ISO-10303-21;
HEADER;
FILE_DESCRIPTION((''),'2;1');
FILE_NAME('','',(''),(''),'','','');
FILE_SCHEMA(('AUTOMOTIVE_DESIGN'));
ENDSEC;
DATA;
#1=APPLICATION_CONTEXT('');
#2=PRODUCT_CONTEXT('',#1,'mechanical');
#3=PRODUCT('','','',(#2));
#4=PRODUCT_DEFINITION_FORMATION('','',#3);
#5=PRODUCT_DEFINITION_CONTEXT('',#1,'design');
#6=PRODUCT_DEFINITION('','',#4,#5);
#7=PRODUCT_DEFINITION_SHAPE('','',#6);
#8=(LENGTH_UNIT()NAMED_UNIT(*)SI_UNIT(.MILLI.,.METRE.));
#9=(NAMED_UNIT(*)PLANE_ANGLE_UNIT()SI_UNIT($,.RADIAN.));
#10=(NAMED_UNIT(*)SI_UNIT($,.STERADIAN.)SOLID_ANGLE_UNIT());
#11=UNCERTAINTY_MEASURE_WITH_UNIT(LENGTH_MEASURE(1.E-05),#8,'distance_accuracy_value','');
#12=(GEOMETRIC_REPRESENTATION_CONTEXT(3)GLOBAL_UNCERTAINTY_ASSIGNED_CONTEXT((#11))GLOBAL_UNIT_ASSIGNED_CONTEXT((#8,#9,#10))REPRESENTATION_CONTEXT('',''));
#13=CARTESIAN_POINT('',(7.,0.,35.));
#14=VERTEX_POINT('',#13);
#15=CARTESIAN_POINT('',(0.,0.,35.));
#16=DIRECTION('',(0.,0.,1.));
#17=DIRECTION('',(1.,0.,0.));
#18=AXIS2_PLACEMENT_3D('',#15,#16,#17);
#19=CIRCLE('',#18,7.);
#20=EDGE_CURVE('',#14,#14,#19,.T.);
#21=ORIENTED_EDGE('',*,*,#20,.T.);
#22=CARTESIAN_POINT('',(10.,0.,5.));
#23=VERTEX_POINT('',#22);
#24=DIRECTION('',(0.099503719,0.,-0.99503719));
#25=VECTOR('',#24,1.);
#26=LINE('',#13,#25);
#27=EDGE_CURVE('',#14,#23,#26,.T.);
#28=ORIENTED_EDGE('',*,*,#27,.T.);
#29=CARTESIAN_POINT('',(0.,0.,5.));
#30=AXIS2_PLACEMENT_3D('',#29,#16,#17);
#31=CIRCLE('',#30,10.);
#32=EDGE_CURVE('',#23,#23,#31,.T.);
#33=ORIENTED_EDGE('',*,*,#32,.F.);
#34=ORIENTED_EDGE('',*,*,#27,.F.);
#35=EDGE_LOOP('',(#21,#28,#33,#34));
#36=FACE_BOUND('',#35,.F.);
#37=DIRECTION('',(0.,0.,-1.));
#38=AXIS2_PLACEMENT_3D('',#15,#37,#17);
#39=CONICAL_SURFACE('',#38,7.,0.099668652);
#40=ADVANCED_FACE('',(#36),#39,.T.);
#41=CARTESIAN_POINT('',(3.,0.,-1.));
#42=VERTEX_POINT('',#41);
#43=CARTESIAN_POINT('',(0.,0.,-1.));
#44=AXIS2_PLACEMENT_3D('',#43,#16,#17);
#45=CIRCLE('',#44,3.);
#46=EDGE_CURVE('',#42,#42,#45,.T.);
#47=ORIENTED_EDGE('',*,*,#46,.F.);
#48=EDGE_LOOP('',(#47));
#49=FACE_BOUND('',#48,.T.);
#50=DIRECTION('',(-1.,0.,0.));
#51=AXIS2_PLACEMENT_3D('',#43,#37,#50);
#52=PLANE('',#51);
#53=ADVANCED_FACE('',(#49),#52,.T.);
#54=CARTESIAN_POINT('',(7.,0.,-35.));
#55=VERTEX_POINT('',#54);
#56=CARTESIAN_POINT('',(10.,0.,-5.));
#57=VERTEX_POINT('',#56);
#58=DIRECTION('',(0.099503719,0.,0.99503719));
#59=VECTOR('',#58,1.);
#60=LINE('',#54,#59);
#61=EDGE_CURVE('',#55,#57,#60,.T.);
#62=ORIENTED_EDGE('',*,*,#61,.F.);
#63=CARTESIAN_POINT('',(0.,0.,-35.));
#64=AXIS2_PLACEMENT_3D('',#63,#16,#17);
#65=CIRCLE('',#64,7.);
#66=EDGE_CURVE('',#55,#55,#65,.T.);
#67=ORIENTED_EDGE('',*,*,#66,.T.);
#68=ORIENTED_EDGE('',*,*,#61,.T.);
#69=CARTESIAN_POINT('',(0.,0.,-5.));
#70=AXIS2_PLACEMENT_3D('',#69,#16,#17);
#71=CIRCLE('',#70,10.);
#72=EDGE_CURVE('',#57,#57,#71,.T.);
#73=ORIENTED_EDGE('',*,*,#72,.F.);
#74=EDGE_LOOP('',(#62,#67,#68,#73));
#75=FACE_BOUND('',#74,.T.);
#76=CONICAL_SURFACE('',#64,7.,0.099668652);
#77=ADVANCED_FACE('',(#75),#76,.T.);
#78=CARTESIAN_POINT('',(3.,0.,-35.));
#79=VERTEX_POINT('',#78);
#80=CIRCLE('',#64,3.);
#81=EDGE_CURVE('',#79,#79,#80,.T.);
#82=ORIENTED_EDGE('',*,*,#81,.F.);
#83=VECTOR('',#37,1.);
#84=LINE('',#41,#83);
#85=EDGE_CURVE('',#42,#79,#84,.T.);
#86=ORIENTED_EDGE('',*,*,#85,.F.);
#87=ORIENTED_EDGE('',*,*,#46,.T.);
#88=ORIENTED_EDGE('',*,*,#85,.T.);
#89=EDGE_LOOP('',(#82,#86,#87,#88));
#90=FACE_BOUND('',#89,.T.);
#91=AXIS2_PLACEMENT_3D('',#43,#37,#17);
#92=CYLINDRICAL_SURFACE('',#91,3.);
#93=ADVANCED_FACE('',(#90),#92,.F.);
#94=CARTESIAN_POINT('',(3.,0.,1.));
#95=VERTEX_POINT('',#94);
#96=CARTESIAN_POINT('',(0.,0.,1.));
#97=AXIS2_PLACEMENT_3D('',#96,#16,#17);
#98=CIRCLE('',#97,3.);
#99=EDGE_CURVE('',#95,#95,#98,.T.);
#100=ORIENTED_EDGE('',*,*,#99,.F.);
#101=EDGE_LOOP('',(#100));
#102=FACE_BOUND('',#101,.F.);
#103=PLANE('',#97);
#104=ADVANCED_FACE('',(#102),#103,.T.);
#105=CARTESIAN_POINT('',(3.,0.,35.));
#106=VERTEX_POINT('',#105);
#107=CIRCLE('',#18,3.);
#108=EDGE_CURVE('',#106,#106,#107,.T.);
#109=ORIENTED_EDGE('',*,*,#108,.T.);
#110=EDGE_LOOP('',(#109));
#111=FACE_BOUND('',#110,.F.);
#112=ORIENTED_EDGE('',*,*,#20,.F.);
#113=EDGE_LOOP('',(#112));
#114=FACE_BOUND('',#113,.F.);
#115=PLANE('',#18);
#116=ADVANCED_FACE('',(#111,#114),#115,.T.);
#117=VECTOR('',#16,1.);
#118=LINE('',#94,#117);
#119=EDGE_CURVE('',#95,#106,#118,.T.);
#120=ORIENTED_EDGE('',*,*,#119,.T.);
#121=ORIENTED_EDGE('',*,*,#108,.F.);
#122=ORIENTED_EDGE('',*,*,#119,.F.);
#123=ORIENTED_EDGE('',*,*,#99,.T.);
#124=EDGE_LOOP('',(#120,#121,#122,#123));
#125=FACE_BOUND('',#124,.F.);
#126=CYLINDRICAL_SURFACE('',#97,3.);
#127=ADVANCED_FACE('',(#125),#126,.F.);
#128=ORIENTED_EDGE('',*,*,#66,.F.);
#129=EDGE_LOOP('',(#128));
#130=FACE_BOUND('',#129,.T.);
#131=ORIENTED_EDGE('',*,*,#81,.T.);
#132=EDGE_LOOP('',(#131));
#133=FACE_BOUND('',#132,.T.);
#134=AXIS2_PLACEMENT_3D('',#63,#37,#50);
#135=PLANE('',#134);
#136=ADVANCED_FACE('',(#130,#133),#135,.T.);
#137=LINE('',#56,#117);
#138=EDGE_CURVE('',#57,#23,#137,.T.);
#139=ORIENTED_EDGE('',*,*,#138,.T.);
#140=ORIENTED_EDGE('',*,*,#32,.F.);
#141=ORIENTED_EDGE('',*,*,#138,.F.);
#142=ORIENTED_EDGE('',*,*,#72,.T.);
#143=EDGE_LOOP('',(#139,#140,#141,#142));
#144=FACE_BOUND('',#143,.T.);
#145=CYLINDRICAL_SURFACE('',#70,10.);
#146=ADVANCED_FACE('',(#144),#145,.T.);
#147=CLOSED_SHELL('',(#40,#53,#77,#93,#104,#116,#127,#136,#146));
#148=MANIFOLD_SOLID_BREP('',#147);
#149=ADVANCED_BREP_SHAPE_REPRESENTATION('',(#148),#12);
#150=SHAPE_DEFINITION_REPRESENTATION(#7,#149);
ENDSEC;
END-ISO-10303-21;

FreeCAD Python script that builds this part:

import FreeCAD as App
import Part
import Sketcher

V = App.Vector

doc = App.newDocument("Part")
body = doc.addObject("PartDesign::Body", "Body")

# Sketch on XZ plane
sketch1 = doc.addObject("Sketcher::SketchObject", "Sketch")
body.addObject(sketch1)
sketch1.AttachmentSupport = (doc.XZ_Plane, [""])
sketch1.MapMode = "FlatFace"
sketch1.addGeometry(Part.LineSegment(V(7, 35, 0), V(3, 35, 0)), False)
sketch1.addGeometry(Part.LineSegment(V(3, 35, 0), V(3, 1, 0)), False)
sketch1.addGeometry(Part.LineSegment(V(3, 1, 0), V(0, 1, 0)), False)
sketch1.addGeometry(Part.LineSegment(V(0, 1, 0), V(0, 0, 0)), False)
sketch1.addGeometry(Part.LineSegment(V(0, 0, 0), V(10, 0, 0)), False)
sketch1.addGeometry(Part.LineSegment(V(10, 0, 0), V(10, 5, 0)), False)
sketch1.addGeometry(Part.LineSegment(V(10, 5, 0), V(7, 35, 0)), False)
sketch1.addConstraint(Sketcher.Constraint("Coincident", 0, 2, 1, 1))
sketch1.addConstraint(Sketcher.Constraint("Coincident", 1, 2, 2, 1))
sketch1.addConstraint(Sketcher.Constraint("Coincident", 2, 2, 3, 1))
sketch1.addConstraint(Sketcher.Constraint("Coincident", 3, 2, 4, 1))
sketch1.addConstraint(Sketcher.Constraint("Coincident", 4, 2, 5, 1))
sketch1.addConstraint(Sketcher.Constraint("Coincident", 5, 2, 6, 1))
sketch1.addConstraint(Sketcher.Constraint("Coincident", 6, 2, 0, 1))
sketch1.addConstraint(Sketcher.Constraint("Horizontal", 0))
sketch1.addConstraint(Sketcher.Constraint("Vertical", 1))
sketch1.addConstraint(Sketcher.Constraint("Horizontal", 2))
sketch1.addConstraint(Sketcher.Constraint("Vertical", 3))
sketch1.addConstraint(Sketcher.Constraint("Horizontal", 4))
sketch1.addConstraint(Sketcher.Constraint("Vertical", 5))
sketch1.addConstraint(Sketcher.Constraint("Coincident", 3, 2, -1, 1))
sketch1.addConstraint(Sketcher.Constraint("DistanceX", 0, 2, 0, 1, 4.0))
sketch1.addConstraint(Sketcher.Constraint("DistanceX", 2, 2, 2, 1, 3.0))
sketch1.addConstraint(Sketcher.Constraint("DistanceX", 4, 1, 4, 2, 10.0))
sketch1.addConstraint(Sketcher.Constraint("DistanceY", 1, 2, 1, 1, 34.0))
sketch1.addConstraint(Sketcher.Constraint("DistanceY", 3, 2, 3, 1, 1.0))
sketch1.addConstraint(Sketcher.Constraint("DistanceY", 5, 1, 5, 2, 5.0))
revolution = doc.addObject("PartDesign::Revolution", "Revolution")
body.addObject(revolution)
revolution.Profile = sketch1
revolution.ReferenceAxis = (sketch1, ["V_Axis"])
revolution.Angle = 360
doc.recompute()

mirrored = doc.addObject("PartDesign::Mirrored", "Mirrored")
body.addObject(mirrored)
mirrored.Originals = [revolution]
mirrored.MirrorPlane = (doc.XY_Plane, [""])
body.Tip = mirrored

doc.recompute()
